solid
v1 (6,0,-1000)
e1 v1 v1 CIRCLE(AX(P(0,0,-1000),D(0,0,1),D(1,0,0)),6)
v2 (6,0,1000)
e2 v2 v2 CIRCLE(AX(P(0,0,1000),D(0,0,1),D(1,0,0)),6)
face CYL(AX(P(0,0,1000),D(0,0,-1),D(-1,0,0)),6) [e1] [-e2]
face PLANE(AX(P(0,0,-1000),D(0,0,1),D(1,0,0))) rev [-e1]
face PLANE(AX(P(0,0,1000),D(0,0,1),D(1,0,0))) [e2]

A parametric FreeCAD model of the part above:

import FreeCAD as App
import Part
import Sketcher
Q = App.Units.Quantity

doc = App.newDocument("Part")
body = doc.addObject("PartDesign::Body", "Body")

# Sketch on XY plane
sketch1 = body.newObject("Sketcher::SketchObject", "Sketch")
sketch1.AttachmentSupport = (doc.getObject("XY_Plane"), [""])
sketch1.MapMode = "FlatFace"
sketch1.addGeometry(Part.Circle(App.Vector(0, 0, 0), App.Vector(0, 0, 1), 6), False)
sketch1.addConstraint([
    Sketcher.Constraint("Coincident", 0, 3, -1, 1),
    Sketcher.Constraint("Diameter", 0, Q("12 mm")),
])
pad1 = body.newObject("PartDesign::Pad", "Pad")
pad1.Profile = sketch1
pad1.Length = 2000
pad1.Midplane = True

doc.recompute()
